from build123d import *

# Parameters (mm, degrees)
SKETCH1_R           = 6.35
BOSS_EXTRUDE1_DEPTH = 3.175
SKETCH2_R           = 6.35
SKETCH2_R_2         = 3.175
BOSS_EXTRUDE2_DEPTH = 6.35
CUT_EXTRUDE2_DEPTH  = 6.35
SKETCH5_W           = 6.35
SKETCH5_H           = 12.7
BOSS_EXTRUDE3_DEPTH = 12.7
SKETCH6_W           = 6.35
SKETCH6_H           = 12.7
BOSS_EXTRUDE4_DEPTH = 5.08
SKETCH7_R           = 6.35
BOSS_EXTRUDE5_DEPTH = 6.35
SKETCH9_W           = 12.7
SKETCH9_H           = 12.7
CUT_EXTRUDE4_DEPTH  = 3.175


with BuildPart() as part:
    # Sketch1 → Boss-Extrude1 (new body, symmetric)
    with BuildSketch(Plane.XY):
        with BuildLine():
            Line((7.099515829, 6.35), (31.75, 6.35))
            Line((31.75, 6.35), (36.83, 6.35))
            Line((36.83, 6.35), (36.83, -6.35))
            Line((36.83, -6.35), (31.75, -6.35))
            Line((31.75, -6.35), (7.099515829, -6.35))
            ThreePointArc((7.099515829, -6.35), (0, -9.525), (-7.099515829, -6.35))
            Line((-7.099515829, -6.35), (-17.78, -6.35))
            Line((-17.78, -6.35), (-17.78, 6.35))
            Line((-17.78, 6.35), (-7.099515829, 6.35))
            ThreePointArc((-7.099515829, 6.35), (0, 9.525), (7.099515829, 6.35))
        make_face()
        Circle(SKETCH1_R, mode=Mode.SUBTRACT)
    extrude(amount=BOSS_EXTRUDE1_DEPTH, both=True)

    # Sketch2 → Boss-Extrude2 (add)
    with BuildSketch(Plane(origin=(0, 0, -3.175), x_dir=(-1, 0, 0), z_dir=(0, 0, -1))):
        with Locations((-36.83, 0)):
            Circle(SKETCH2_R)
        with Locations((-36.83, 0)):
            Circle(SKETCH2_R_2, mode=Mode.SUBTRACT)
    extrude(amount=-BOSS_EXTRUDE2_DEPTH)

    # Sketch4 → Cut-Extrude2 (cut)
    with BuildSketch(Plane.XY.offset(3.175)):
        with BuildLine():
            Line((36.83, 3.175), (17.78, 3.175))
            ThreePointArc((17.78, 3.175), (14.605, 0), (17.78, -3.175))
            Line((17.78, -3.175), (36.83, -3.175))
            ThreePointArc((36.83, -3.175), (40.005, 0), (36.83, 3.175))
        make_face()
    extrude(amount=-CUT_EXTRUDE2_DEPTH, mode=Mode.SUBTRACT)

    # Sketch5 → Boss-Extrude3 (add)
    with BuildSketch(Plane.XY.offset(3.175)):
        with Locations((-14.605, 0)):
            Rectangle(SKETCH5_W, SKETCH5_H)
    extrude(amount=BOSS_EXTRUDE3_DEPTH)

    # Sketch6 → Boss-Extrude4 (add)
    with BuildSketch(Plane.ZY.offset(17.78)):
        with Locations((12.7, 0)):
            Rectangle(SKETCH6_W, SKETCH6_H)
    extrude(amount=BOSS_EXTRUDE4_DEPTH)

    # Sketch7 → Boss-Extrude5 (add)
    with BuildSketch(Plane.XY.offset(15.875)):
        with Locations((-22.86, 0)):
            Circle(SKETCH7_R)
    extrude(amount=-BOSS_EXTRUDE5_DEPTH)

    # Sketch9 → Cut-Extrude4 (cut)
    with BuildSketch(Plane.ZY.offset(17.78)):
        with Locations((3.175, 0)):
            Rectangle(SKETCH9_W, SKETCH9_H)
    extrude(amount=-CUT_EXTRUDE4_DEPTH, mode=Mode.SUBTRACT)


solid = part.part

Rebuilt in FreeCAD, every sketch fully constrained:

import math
import FreeCAD as App
import Part
import Sketcher
from FreeCAD import Vector
Q = App.Units.Quantity

doc = App.newDocument("Part")
params = doc.addObject("Spreadsheet::Sheet", "Params")
for row, (alias, value) in enumerate([
    ("sketch1_diameter", "0.5 in"),
    ("sketch1_height", "0.5 in"),
    ("sketch1_radius", "0.375 in"),
    ("pad1_length", "0.25 in"),
    ("sketch2_diameter", "0.5 in"),
    ("sketch2_diameter2", "0.25 in"),
    ("pad2_length", "0.25 in"),
    ("sketch3_radius", "0.125 in"),
    ("sketch3_width", "0.75 in"),
    ("pocket1_length", "0.25 in"),
    ("sketch4_height", "0.5 in"),
    ("sketch4_width", "0.25 in"),
    ("pad3_length", "0.5 in"),
    ("sketch5_width", "0.5 in"),
    ("sketch5_height", "0.25 in"),
    ("pad4_length", "0.2 in"),
    ("sketch6_diameter", "0.5 in"),
    ("pad5_length", "0.25 in"),
    ("sketch7_width", "0.5 in"),
    ("pocket2_length", "0.125 in"),
], start=1):
    params.set(f"A{row}", alias)
    params.set(f"B{row}", "=" + value)
    params.setAlias(f"B{row}", alias)

body = doc.addObject("PartDesign::Body", "Body")

# Sketch on XY plane
sketch1 = body.newObject("Sketcher::SketchObject", "Sketch")
sketch1.AttachmentSupport = (doc.getObject("XY_Plane"), [""])
sketch1.MapMode = "FlatFace"
sketch1.addGeometry([
    Part.LineSegment(Vector(37, 6, 0), Vector(7, 6, 0)),  # 0
    Part.ArcOfCircle(Part.Circle(Vector(0, 0, 0), Vector(0, 0, 1), 10), math.radians(42), math.radians(138)),  # 1
    Part.LineSegment(Vector(-7, 6, 0), Vector(-18, 6, 0)),  # 2
    Part.LineSegment(Vector(-18, 6, 0), Vector(-18, -6, 0)),  # 3
    Part.LineSegment(Vector(-18, -6, 0), Vector(-7, -6, 0)),  # 4
    Part.ArcOfCircle(Part.Circle(Vector(0, 0, 0), Vector(0, 0, 1), 10), math.radians(-138), math.radians(-42)),  # 5
    Part.LineSegment(Vector(7, -6, 0), Vector(37, -6, 0)),  # 6
    Part.LineSegment(Vector(37, -6, 0), Vector(37, 6, 0)),  # 7
    Part.Circle(Vector(0, 0, 0), Vector(0, 0, 1), 6),  # 8
], False)
sketch1.addConstraint([
    Sketcher.Constraint("Coincident", 0, 2, 1, 1),
    Sketcher.Constraint("Coincident", 1, 2, 2, 1),
    Sketcher.Constraint("Coincident", 2, 2, 3, 1),
    Sketcher.Constraint("Coincident", 3, 2, 4, 1),
    Sketcher.Constraint("Coincident", 4, 2, 5, 1),
    Sketcher.Constraint("Coincident", 5, 2, 6, 1),
    Sketcher.Constraint("Coincident", 6, 2, 7, 1),
    Sketcher.Constraint("Coincident", 7, 2, 0, 1),
    Sketcher.Constraint("Horizontal", 0),
    Sketcher.Constraint("Horizontal", 2),
    Sketcher.Constraint("Vertical", 3),
    Sketcher.Constraint("Horizontal", 4),
    Sketcher.Constraint("Horizontal", 6),
    Sketcher.Constraint("Vertical", 7),
    Sketcher.Constraint("Coincident", 1, 3, -1, 1),
    Sketcher.Constraint("Coincident", 5, 3, -1, 1),
    Sketcher.Constraint("Coincident", 8, 3, -1, 1),
    Sketcher.Constraint("Equal", 1, 5),
    Sketcher.Constraint("Horizontal", 0, 2, 1, 2),
    Sketcher.Constraint("Horizontal", 4, 2, 5, 2),
    Sketcher.Constraint("Vertical", 1, 2, 4, 2),
    Sketcher.Constraint("Diameter", 8, Q("0.5 in")),
    Sketcher.Constraint("DistanceY", 3, 2, 3, 1, Q("0.5 in")),
    Sketcher.Constraint("Radius", 1, Q("0.375 in")),
    Sketcher.Constraint("DistanceX", 2, 2, -1, 1, Q("0.7 in")),
    Sketcher.Constraint("DistanceX", -1, 1, 6, 2, Q("1.45 in")),
])
sketch1.setExpression("Constraints[21]", "Params.sketch1_diameter")
sketch1.setExpression("Constraints[22]", "Params.sketch1_height")
sketch1.setExpression("Constraints[23]", "Params.sketch1_radius")
pad1 = body.newObject("PartDesign::Pad", "Pad")
pad1.Profile = sketch1
pad1.setExpression("Length", "Params.pad1_length")
pad1.Midplane = True

# Sketch on XY plane
sketch2 = body.newObject("Sketcher::SketchObject", "Sketch001")
sketch2.AttachmentSupport = (doc.getObject("XY_Plane"), [""])
sketch2.MapMode = "FlatFace"
sketch2.AttachmentOffset = App.Placement(Vector(0, 0, -0.125 * 25.4), App.Rotation())
sketch2.addGeometry([
    Part.Circle(Vector(36.8, 0, 0), Vector(0, 0, 1), 6.3),
    Part.Circle(Vector(36.8, 0, 0), Vector(0, 0, 1), 3.2),
], False)
sketch2.addConstraint([
    Sketcher.Constraint("Coincident", 1, 3, 0, 3),
    Sketcher.Constraint("PointOnObject", 0, 3, -1),
    Sketcher.Constraint("Diameter", 0, Q("0.5 in")),
    Sketcher.Constraint("Diameter", 1, Q("0.25 in")),
    Sketcher.Constraint("DistanceX", -1, 1, 0, 3, Q("1.45 in")),
])
sketch2.setExpression("Constraints[2]", "Params.sketch2_diameter")
sketch2.setExpression("Constraints[3]", "Params.sketch2_diameter2")
pad2 = body.newObject("PartDesign::Pad", "Pad001")
pad2.Profile = sketch2
pad2.setExpression("Length", "Params.pad2_length")

# Sketch on XY plane
sketch3 = body.newObject("Sketcher::SketchObject", "Sketch002")
sketch3.AttachmentSupport = (doc.getObject("XY_Plane"), [""])
sketch3.MapMode = "FlatFace"
sketch3.AttachmentOffset = App.Placement(Vector(0, 0, 0.125 * 25.4), App.Rotation())
sketch3.addGeometry([
    Part.LineSegment(Vector(36.8, 3.2, 0), Vector(17.8, 3.2, 0)),
    Part.ArcOfCircle(Part.Circle(Vector(17.8, 0, 0), Vector(0, 0, 1), 3.2), math.radians(90), math.radians(270)),
    Part.LineSegment(Vector(17.8, -3.2, 0), Vector(36.8, -3.2, 0)),
    Part.ArcOfCircle(Part.Circle(Vector(36.8, 0, 0), Vector(0, 0, 1), 3.2), math.radians(-90), math.radians(90)),
], False)
sketch3.addConstraint([
    Sketcher.Constraint("Tangent", 0, 2, 1, 1),
    Sketcher.Constraint("Tangent", 1, 2, 2, 1),
    Sketcher.Constraint("Tangent", 2, 2, 3, 1),
    Sketcher.Constraint("Tangent", 3, 2, 0, 1),
    Sketcher.Constraint("Horizontal", 0),
    Sketcher.Constraint("Horizontal", 2),
    Sketcher.Constraint("PointOnObject", 1, 3, -1),
    Sketcher.Constraint("Radius", 1, Q("0.125 in")),
    Sketcher.Constraint("DistanceX", 0, 2, 0, 1, Q("0.75 in")),
    Sketcher.Constraint("DistanceX", -1, 1, 1, 3, Q("0.7 in")),
])
sketch3.setExpression("Constraints[7]", "Params.sketch3_radius")
sketch3.setExpression("Constraints[8]", "Params.sketch3_width")
pocket1 = body.newObject("PartDesign::Pocket", "Pocket")
pocket1.Profile = sketch3
pocket1.setExpression("Length", "Params.pocket1_length")

# Sketch on XY plane
sketch4 = body.newObject("Sketcher::SketchObject", "Sketch003")
sketch4.AttachmentSupport = (doc.getObject("XY_Plane"), [""])
sketch4.MapMode = "FlatFace"
sketch4.AttachmentOffset = App.Placement(Vector(0, 0, 0.125 * 25.4), App.Rotation())
sketch4.addGeometry([
    Part.LineSegment(Vector(-18, 6, 0), Vector(-18, -6, 0)),
    Part.LineSegment(Vector(-18, -6, 0), Vector(-11, -6, 0)),
    Part.LineSegment(Vector(-11, -6, 0), Vector(-11, 6, 0)),
    Part.LineSegment(Vector(-11, 6, 0), Vector(-18, 6, 0)),
], False)
sketch4.addConstraint([
    Sketcher.Constraint("Coincident", 0, 2, 1, 1),
    Sketcher.Constraint("Coincident", 1, 2, 2, 1),
    Sketcher.Constraint("Coincident", 2, 2, 3, 1),
    Sketcher.Constraint("Coincident", 3, 2, 0, 1),
    Sketcher.Constraint("Vertical", 0),
    Sketcher.Constraint("Horizontal", 1),
    Sketcher.Constraint("Vertical", 2),
    Sketcher.Constraint("Horizontal", 3),
    Sketcher.Constraint("DistanceY", 0, 2, 0, 1, Q("0.5 in")),
    Sketcher.Constraint("DistanceX", 1, 1, 1, 2, Q("0.25 in")),
    Sketcher.Constraint("DistanceX", 0, 2, -1, 1, Q("0.7 in")),
    Sketcher.Constraint("DistanceY", 0, 2, -1, 1, Q("0.25 in")),
])
sketch4.setExpression("Constraints[8]", "Params.sketch4_height")
sketch4.setExpression("Constraints[9]", "Params.sketch4_width")
pad3 = body.newObject("PartDesign::Pad", "Pad002")
pad3.Profile = sketch4
pad3.setExpression("Length", "Params.pad3_length")

# Sketch on YZ plane
sketch5 = body.newObject("Sketcher::SketchObject", "Sketch004")
sketch5.AttachmentSupport = (doc.getObject("YZ_Plane"), [""])
sketch5.MapMode = "FlatFace"
sketch5.AttachmentOffset = App.Placement(Vector(0, 0, -0.7 * 25.4), App.Rotation())
sketch5.addGeometry([
    Part.LineSegment(Vector(6, 10, 0), Vector(-6, 10, 0)),
    Part.LineSegment(Vector(-6, 10, 0), Vector(-6, 16, 0)),
    Part.LineSegment(Vector(-6, 16, 0), Vector(6, 16, 0)),
    Part.LineSegment(Vector(6, 16, 0), Vector(6, 10, 0)),
], False)
sketch5.addConstraint([
    Sketcher.Constraint("Coincident", 0, 2, 1, 1),
    Sketcher.Constraint("Coincident", 1, 2, 2, 1),
    Sketcher.Constraint("Coincident", 2, 2, 3, 1),
    Sketcher.Constraint("Coincident", 3, 2, 0, 1),
    Sketcher.Constraint("Horizontal", 0),
    Sketcher.Constraint("Vertical", 1),
    Sketcher.Constraint("Horizontal", 2),
    Sketcher.Constraint("Vertical", 3),
    Sketcher.Constraint("DistanceX", 0, 2, 0, 1, Q("0.5 in")),
    Sketcher.Constraint("DistanceY", 1, 1, 1, 2, Q("0.25 in")),
    Sketcher.Constraint("DistanceX", 0, 2, -1, 1, Q("0.25 in")),
    Sketcher.Constraint("DistanceY", -1, 1, 0, 2, Q("0.375 in")),
])
sketch5.setExpression("Constraints[8]", "Params.sketch5_width")
sketch5.setExpression("Constraints[9]", "Params.sketch5_height")
pad4 = body.newObject("PartDesign::Pad", "Pad003")
pad4.Profile = sketch5
pad4.setExpression("Length", "Params.pad4_length")
pad4.Reversed = True

# Sketch on XY plane
sketch6 = body.newObject("Sketcher::SketchObject", "Sketch005")
sketch6.AttachmentSupport = (doc.getObject("XY_Plane"), [""])
sketch6.MapMode = "FlatFace"
sketch6.AttachmentOffset = App.Placement(Vector(0, 0, 0.625 * 25.4), App.Rotation())
sketch6.addGeometry(Part.Circle(Vector(-23, 0, 0), Vector(0, 0, 1), 6), False)
sketch6.addConstraint([
    Sketcher.Constraint("PointOnObject", 0, 3, -1),
    Sketcher.Constraint("Diameter", 0, Q("0.5 in")),
    Sketcher.Constraint("DistanceX", 0, 3, -1, 1, Q("0.9 in")),
])
sketch6.setExpression("Constraints[1]", "Params.sketch6_diameter")
pad5 = body.newObject("PartDesign::Pad", "Pad004")
pad5.Profile = sketch6
pad5.setExpression("Length", "Params.pad5_length")
pad5.Reversed = True

# Sketch on YZ plane
sketch7 = body.newObject("Sketcher::SketchObject", "Sketch006")
sketch7.AttachmentSupport = (doc.getObject("YZ_Plane"), [""])
sketch7.MapMode = "FlatFace"
sketch7.AttachmentOffset = App.Placement(Vector(0, 0, -0.7 * 25.4), App.Rotation())
sketch7.addGeometry([
    Part.LineSegment(Vector(6, -3, 0), Vector(-6, -3, 0)),
    Part.LineSegment(Vector(-6, -3, 0), Vector(-6, 10, 0)),
    Part.LineSegment(Vector(-6, 10, 0), Vector(6, 10, 0)),
    Part.LineSegment(Vector(6, 10, 0), Vector(6, -3, 0)),
], False)
sketch7.addConstraint([
    Sketcher.Constraint("Coincident", 0, 2, 1, 1),
    Sketcher.Constraint("Coincident", 1, 2, 2, 1),
    Sketcher.Constraint("Coincident", 2, 2, 3, 1),
    Sketcher.Constraint("Coincident", 3, 2, 0, 1),
    Sketcher.Constraint("Horizontal", 0),
    Sketcher.Constraint("Vertical", 1),
    Sketcher.Constraint("Horizontal", 2),
    Sketcher.Constraint("Vertical", 3),
    Sketcher.Constraint("Equal", 2, 1),
    Sketcher.Constraint("DistanceX", 0, 2, 0, 1, Q("0.5 in")),
    Sketcher.Constraint("DistanceX", 0, 2, -1, 1, Q("0.25 in")),
    Sketcher.Constraint("DistanceY", 0, 2, -1, 1, Q("0.125 in")),
])
sketch7.setExpression("Constraints[9]", "Params.sketch7_width")
pocket2 = body.newObject("PartDesign::Pocket", "Pocket001")
pocket2.Profile = sketch7
pocket2.setExpression("Length", "Params.pocket2_length")
pocket2.Reversed = True

doc.recompute()
